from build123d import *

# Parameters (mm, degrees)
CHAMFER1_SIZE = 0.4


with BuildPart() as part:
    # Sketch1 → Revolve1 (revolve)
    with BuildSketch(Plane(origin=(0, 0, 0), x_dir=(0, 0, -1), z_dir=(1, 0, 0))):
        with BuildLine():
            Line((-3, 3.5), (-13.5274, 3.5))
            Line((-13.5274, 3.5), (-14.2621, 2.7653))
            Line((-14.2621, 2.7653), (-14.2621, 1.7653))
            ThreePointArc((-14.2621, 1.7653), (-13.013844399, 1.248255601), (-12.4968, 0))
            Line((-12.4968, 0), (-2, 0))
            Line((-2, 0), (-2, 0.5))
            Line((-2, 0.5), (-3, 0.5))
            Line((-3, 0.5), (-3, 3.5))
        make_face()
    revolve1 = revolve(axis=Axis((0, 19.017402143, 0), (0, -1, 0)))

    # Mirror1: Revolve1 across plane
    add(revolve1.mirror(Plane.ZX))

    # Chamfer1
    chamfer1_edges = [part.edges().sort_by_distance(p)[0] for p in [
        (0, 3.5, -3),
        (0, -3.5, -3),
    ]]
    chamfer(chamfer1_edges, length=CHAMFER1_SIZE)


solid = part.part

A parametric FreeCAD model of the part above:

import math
import FreeCAD as App
import Part
import Sketcher
from FreeCAD import Vector
Q = App.Units.Quantity


def edges_at(feature, points):
    """Names of the edges that pass closest to the given points."""
    edges = feature.Shape.Edges
    near = lambda p: min(range(len(edges)), key=lambda i: edges[i].distToShape(Part.Vertex(*p))[0])
    return sorted({f"Edge{near(p) + 1}" for p in points})

doc = App.newDocument("Part")
body = doc.addObject("PartDesign::Body", "Body")

# Sketch on YZ plane
sketch1 = body.newObject("Sketcher::SketchObject", "Sketch")
sketch1.AttachmentSupport = (doc.getObject("YZ_Plane"), [""])
sketch1.MapMode = "FlatFace"
sketch1.addGeometry([
    Part.LineSegment(Vector(3.5, 3, 0), Vector(3.5, 13.5, 0)),  # 0
    Part.LineSegment(Vector(3.5, 13.5, 0), Vector(2.8, 14.3, 0)),  # 1
    Part.LineSegment(Vector(2.8, 14.3, 0), Vector(1.8, 14.3, 0)),  # 2
    Part.ArcOfCircle(Part.Circle(Vector(0, 14.3, 0), Vector(0, 0, 1), 1.8), math.radians(-90), math.radians(0)),  # 3
    Part.LineSegment(Vector(0, 12.5, 0), Vector(0, 2, 0)),  # 4
    Part.LineSegment(Vector(0, 2, 0), Vector(0.5, 2, 0)),  # 5
    Part.LineSegment(Vector(0.5, 2, 0), Vector(0.5, 3, 0)),  # 6
    Part.LineSegment(Vector(0.5, 3, 0), Vector(3.5, 3, 0)),  # 7
], False)
sketch1.addConstraint([
    Sketcher.Constraint("Coincident", 0, 2, 1, 1),
    Sketcher.Constraint("Coincident", 1, 2, 2, 1),
    Sketcher.Constraint("Coincident", 2, 2, 3, 2),
    Sketcher.Constraint("Coincident", 3, 1, 4, 1),
    Sketcher.Constraint("Coincident", 4, 2, 5, 1),
    Sketcher.Constraint("Coincident", 5, 2, 6, 1),
    Sketcher.Constraint("Coincident", 6, 2, 7, 1),
    Sketcher.Constraint("Coincident", 7, 2, 0, 1),
    Sketcher.Constraint("Vertical", 0),
    Sketcher.Constraint("Horizontal", 2),
    Sketcher.Constraint("Vertical", 4),
    Sketcher.Constraint("Horizontal", 5),
    Sketcher.Constraint("Vertical", 6),
    Sketcher.Constraint("Horizontal", 7),
    Sketcher.Constraint("PointOnObject", 3, 3, -2),
    Sketcher.Constraint("PointOnObject", 3, 1, -2),
    Sketcher.Constraint("Horizontal", 3, 3, 1, 2),
    Sketcher.Constraint("Equal", 2, 6),
    Sketcher.Constraint("DistanceX", 2, 2, 2, 1, 1.0),
    Sketcher.Constraint("DistanceX", 7, 1, 7, 2, 3.0),
    Sketcher.Constraint("Angle", 1, Q("135 deg")),
    Sketcher.Constraint("DistanceX", 5, 1, 5, 2, 0.5),
    Sketcher.Constraint("DistanceY", -1, 1, 4, 2, 2.0),
    Sketcher.Constraint("Radius", 3, 1.7653),
    Sketcher.Constraint("DistanceY", 0, 1, 0, 2, 10.5274),
])
revolution = body.newObject("PartDesign::Revolution", "Revolution")
revolution.Profile = sketch1
revolution.ReferenceAxis = (sketch1, ["H_Axis"])
revolution.Angle = 360
doc.recompute()

mirrored = body.newObject("PartDesign::Mirrored", "Mirrored")
mirrored.Originals = [revolution]
mirrored.MirrorPlane = (doc.getObject("XZ_Plane"), [""])
body.Tip = mirrored
doc.recompute()

chamfer = body.newObject("PartDesign::Chamfer", "Chamfer")
chamfer.Base = (mirrored, edges_at(mirrored, [(0, 3.5, -3), (0, -3.5, -3)]))
chamfer.Size = 0.4

doc.recompute()
